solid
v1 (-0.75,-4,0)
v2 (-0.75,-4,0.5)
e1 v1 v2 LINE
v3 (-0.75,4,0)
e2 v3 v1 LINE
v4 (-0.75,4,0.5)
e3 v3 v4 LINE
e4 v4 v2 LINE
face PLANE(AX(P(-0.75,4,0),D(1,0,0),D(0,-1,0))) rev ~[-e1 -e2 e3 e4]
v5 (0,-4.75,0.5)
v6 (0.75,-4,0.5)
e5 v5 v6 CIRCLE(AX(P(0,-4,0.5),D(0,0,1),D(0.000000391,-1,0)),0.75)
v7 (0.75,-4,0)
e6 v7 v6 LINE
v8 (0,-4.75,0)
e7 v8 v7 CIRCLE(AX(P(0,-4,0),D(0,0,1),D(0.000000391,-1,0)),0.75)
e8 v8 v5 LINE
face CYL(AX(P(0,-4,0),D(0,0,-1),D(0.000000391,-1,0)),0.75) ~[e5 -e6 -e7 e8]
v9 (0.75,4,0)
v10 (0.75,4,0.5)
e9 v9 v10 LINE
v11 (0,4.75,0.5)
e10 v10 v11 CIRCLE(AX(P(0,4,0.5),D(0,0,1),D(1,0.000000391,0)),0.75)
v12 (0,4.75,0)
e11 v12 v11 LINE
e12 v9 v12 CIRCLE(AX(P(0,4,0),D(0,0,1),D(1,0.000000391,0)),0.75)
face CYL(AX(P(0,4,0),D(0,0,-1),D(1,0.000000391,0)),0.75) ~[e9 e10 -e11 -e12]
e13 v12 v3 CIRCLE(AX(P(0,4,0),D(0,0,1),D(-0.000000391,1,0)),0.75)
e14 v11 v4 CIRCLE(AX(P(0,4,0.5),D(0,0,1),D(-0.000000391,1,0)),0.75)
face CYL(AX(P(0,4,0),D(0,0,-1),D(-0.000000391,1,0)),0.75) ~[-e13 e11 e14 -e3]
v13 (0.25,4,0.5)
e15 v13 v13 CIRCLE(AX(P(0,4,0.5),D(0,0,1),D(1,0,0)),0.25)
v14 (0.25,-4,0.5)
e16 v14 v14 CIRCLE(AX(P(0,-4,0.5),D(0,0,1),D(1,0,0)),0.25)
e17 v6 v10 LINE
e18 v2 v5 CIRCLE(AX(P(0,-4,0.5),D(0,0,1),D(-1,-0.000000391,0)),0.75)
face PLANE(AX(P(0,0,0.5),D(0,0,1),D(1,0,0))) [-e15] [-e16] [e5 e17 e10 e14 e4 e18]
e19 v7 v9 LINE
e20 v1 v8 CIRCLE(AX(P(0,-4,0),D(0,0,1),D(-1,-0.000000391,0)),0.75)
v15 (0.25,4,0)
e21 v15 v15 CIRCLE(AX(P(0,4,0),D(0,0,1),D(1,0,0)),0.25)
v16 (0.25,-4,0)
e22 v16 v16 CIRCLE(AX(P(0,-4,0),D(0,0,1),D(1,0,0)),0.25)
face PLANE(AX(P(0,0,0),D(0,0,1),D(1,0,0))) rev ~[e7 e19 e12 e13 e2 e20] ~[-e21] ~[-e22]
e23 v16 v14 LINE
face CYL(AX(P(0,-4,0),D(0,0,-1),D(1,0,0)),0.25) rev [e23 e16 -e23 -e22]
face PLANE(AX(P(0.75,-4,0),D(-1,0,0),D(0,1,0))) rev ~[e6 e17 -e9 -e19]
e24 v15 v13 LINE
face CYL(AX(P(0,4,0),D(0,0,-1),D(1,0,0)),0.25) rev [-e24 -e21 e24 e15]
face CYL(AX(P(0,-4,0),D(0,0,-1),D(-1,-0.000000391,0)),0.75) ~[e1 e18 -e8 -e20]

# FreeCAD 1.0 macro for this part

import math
import FreeCAD as App
import Part
import Sketcher
from FreeCAD import Vector

doc = App.newDocument("Part")
body = doc.addObject("PartDesign::Body", "Body")

sketch1 = body.newObject("Sketcher::SketchObject", "Sketch")
sketch1.AttachmentSupport = (doc.getObject("XY_Plane"), [""])
sketch1.MapMode = "FlatFace"
sketch1.addGeometry(Part.LineSegment(Vector(0.75, -4, 0), Vector(0.75, 4, 0)), False)
sketch1.addGeometry(Part.ArcOfCircle(Part.Circle(Vector(0, 4, 0), Vector(0, 0, 1), 0.75), math.radians(0.000022), math.radians(89.999978)), False)
sketch1.addGeometry(Part.ArcOfCircle(Part.Circle(Vector(0, 4, 0), Vector(0, 0, 1), 0.75), math.radians(90.000022), math.radians(179.999978)), False)
sketch1.addGeometry(Part.LineSegment(Vector(-0.75, 4, 0), Vector(-0.75, -4, 0)), False)
sketch1.addGeometry(Part.ArcOfCircle(Part.Circle(Vector(0, -4, 0), Vector(0, 0, 1), 0.75), math.radians(-179.999978), math.radians(-90.000022)), False)
sketch1.addGeometry(Part.ArcOfCircle(Part.Circle(Vector(0, -4, 0), Vector(0, 0, 1), 0.75), math.radians(-89.999978), math.radians(-0.000022)), False)
sketch1.addGeometry(Part.Circle(Vector(0, -4, 0), Vector(0, 0, 1), 0.25), False)
sketch1.addGeometry(Part.Circle(Vector(0, 4, 0), Vector(0, 0, 1), 0.25), False)
sketch1.addConstraint(Sketcher.Constraint("Tangent", 0, 2, 1, 1))
sketch1.addConstraint(Sketcher.Constraint("Tangent", 1, 2, 2, 1))
sketch1.addConstraint(Sketcher.Constraint("Tangent", 2, 2, 3, 1))
sketch1.addConstraint(Sketcher.Constraint("Tangent", 3, 2, 4, 1))
sketch1.addConstraint(Sketcher.Constraint("Tangent", 4, 2, 5, 1))
sketch1.addConstraint(Sketcher.Constraint("Tangent", 5, 2, 0, 1))
sketch1.addConstraint(Sketcher.Constraint("Vertical", 0))
sketch1.addConstraint(Sketcher.Constraint("Vertical", 3))
sketch1.addConstraint(Sketcher.Constraint("Coincident", 6, 3, 4, 3))
sketch1.addConstraint(Sketcher.Constraint("Coincident", 7, 3, 1, 3))
sketch1.addConstraint(Sketcher.Constraint("Equal", 1, 2))
sketch1.addConstraint(Sketcher.Constraint("Equal", 2, 4))
sketch1.addConstraint(Sketcher.Constraint("Equal", 6, 7))
sketch1.addConstraint(Sketcher.Constraint("Symmetric", 1, 3, 4, 3, -1, 1))
sketch1.addConstraint(Sketcher.Constraint("PointOnObject", 1, 2, -2))
sketch1.addConstraint(Sketcher.Constraint("PointOnObject", 4, 2, -2))
sketch1.addConstraint(Sketcher.Constraint("Diameter", 6, 0.5))
sketch1.addConstraint(Sketcher.Constraint("DistanceY", 0, 1, 0, 2, 8.0))
sketch1.addConstraint(Sketcher.Constraint("Radius", 1, 0.75))
pad1 = body.newObject("PartDesign::Pad", "Pad")
pad1.Profile = sketch1
pad1.Length = 0.5

doc.recompute()
